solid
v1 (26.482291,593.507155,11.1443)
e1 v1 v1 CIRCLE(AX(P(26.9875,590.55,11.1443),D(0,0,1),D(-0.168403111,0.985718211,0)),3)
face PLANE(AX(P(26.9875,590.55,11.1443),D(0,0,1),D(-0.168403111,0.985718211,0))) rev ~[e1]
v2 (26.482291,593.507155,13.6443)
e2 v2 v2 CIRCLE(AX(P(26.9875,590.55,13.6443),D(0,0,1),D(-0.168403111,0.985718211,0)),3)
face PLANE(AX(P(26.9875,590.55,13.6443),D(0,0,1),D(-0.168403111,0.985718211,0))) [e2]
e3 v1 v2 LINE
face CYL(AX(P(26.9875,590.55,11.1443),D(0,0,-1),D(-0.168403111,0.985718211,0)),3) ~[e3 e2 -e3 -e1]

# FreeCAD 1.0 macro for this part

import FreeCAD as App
import Part
import Sketcher

doc = App.newDocument("Part")
params = doc.addObject("Spreadsheet::Sheet", "Params")
for row, (alias, value) in enumerate([
    ("sketch1_diameter", "6 mm"),
    ("pad1_length", "2.5 mm"),
], start=1):
    params.set(f"A{row}", alias)
    params.set(f"B{row}", "=" + value)
    params.setAlias(f"B{row}", alias)

body = doc.addObject("PartDesign::Body", "Body")

sketch1 = body.newObject("Sketcher::SketchObject", "Sketch")
sketch1.AttachmentSupport = (doc.getObject("XY_Plane"), [""])
sketch1.MapMode = "FlatFace"
sketch1.AttachmentOffset = App.Placement(App.Vector(0, 0, 11.1443), App.Rotation())
sketch1.addGeometry(Part.Circle(App.Vector(26.9875, 590.55, 0), App.Vector(0, 0, 1), 3), False)
sketch1.addConstraint(Sketcher.Constraint("Diameter", 0, 6.0))
sketch1.addConstraint(Sketcher.Constraint("DistanceY", -1, 1, 0, 3, 590.55))
sketch1.addConstraint(Sketcher.Constraint("DistanceX", -1, 1, 0, 3, 26.9875))
sketch1.setExpression("Constraints[0]", "Params.sketch1_diameter")
pad1 = body.newObject("PartDesign::Pad", "Pad")
pad1.Profile = sketch1
pad1.setExpression("Length", "Params.pad1_length")

doc.recompute()
